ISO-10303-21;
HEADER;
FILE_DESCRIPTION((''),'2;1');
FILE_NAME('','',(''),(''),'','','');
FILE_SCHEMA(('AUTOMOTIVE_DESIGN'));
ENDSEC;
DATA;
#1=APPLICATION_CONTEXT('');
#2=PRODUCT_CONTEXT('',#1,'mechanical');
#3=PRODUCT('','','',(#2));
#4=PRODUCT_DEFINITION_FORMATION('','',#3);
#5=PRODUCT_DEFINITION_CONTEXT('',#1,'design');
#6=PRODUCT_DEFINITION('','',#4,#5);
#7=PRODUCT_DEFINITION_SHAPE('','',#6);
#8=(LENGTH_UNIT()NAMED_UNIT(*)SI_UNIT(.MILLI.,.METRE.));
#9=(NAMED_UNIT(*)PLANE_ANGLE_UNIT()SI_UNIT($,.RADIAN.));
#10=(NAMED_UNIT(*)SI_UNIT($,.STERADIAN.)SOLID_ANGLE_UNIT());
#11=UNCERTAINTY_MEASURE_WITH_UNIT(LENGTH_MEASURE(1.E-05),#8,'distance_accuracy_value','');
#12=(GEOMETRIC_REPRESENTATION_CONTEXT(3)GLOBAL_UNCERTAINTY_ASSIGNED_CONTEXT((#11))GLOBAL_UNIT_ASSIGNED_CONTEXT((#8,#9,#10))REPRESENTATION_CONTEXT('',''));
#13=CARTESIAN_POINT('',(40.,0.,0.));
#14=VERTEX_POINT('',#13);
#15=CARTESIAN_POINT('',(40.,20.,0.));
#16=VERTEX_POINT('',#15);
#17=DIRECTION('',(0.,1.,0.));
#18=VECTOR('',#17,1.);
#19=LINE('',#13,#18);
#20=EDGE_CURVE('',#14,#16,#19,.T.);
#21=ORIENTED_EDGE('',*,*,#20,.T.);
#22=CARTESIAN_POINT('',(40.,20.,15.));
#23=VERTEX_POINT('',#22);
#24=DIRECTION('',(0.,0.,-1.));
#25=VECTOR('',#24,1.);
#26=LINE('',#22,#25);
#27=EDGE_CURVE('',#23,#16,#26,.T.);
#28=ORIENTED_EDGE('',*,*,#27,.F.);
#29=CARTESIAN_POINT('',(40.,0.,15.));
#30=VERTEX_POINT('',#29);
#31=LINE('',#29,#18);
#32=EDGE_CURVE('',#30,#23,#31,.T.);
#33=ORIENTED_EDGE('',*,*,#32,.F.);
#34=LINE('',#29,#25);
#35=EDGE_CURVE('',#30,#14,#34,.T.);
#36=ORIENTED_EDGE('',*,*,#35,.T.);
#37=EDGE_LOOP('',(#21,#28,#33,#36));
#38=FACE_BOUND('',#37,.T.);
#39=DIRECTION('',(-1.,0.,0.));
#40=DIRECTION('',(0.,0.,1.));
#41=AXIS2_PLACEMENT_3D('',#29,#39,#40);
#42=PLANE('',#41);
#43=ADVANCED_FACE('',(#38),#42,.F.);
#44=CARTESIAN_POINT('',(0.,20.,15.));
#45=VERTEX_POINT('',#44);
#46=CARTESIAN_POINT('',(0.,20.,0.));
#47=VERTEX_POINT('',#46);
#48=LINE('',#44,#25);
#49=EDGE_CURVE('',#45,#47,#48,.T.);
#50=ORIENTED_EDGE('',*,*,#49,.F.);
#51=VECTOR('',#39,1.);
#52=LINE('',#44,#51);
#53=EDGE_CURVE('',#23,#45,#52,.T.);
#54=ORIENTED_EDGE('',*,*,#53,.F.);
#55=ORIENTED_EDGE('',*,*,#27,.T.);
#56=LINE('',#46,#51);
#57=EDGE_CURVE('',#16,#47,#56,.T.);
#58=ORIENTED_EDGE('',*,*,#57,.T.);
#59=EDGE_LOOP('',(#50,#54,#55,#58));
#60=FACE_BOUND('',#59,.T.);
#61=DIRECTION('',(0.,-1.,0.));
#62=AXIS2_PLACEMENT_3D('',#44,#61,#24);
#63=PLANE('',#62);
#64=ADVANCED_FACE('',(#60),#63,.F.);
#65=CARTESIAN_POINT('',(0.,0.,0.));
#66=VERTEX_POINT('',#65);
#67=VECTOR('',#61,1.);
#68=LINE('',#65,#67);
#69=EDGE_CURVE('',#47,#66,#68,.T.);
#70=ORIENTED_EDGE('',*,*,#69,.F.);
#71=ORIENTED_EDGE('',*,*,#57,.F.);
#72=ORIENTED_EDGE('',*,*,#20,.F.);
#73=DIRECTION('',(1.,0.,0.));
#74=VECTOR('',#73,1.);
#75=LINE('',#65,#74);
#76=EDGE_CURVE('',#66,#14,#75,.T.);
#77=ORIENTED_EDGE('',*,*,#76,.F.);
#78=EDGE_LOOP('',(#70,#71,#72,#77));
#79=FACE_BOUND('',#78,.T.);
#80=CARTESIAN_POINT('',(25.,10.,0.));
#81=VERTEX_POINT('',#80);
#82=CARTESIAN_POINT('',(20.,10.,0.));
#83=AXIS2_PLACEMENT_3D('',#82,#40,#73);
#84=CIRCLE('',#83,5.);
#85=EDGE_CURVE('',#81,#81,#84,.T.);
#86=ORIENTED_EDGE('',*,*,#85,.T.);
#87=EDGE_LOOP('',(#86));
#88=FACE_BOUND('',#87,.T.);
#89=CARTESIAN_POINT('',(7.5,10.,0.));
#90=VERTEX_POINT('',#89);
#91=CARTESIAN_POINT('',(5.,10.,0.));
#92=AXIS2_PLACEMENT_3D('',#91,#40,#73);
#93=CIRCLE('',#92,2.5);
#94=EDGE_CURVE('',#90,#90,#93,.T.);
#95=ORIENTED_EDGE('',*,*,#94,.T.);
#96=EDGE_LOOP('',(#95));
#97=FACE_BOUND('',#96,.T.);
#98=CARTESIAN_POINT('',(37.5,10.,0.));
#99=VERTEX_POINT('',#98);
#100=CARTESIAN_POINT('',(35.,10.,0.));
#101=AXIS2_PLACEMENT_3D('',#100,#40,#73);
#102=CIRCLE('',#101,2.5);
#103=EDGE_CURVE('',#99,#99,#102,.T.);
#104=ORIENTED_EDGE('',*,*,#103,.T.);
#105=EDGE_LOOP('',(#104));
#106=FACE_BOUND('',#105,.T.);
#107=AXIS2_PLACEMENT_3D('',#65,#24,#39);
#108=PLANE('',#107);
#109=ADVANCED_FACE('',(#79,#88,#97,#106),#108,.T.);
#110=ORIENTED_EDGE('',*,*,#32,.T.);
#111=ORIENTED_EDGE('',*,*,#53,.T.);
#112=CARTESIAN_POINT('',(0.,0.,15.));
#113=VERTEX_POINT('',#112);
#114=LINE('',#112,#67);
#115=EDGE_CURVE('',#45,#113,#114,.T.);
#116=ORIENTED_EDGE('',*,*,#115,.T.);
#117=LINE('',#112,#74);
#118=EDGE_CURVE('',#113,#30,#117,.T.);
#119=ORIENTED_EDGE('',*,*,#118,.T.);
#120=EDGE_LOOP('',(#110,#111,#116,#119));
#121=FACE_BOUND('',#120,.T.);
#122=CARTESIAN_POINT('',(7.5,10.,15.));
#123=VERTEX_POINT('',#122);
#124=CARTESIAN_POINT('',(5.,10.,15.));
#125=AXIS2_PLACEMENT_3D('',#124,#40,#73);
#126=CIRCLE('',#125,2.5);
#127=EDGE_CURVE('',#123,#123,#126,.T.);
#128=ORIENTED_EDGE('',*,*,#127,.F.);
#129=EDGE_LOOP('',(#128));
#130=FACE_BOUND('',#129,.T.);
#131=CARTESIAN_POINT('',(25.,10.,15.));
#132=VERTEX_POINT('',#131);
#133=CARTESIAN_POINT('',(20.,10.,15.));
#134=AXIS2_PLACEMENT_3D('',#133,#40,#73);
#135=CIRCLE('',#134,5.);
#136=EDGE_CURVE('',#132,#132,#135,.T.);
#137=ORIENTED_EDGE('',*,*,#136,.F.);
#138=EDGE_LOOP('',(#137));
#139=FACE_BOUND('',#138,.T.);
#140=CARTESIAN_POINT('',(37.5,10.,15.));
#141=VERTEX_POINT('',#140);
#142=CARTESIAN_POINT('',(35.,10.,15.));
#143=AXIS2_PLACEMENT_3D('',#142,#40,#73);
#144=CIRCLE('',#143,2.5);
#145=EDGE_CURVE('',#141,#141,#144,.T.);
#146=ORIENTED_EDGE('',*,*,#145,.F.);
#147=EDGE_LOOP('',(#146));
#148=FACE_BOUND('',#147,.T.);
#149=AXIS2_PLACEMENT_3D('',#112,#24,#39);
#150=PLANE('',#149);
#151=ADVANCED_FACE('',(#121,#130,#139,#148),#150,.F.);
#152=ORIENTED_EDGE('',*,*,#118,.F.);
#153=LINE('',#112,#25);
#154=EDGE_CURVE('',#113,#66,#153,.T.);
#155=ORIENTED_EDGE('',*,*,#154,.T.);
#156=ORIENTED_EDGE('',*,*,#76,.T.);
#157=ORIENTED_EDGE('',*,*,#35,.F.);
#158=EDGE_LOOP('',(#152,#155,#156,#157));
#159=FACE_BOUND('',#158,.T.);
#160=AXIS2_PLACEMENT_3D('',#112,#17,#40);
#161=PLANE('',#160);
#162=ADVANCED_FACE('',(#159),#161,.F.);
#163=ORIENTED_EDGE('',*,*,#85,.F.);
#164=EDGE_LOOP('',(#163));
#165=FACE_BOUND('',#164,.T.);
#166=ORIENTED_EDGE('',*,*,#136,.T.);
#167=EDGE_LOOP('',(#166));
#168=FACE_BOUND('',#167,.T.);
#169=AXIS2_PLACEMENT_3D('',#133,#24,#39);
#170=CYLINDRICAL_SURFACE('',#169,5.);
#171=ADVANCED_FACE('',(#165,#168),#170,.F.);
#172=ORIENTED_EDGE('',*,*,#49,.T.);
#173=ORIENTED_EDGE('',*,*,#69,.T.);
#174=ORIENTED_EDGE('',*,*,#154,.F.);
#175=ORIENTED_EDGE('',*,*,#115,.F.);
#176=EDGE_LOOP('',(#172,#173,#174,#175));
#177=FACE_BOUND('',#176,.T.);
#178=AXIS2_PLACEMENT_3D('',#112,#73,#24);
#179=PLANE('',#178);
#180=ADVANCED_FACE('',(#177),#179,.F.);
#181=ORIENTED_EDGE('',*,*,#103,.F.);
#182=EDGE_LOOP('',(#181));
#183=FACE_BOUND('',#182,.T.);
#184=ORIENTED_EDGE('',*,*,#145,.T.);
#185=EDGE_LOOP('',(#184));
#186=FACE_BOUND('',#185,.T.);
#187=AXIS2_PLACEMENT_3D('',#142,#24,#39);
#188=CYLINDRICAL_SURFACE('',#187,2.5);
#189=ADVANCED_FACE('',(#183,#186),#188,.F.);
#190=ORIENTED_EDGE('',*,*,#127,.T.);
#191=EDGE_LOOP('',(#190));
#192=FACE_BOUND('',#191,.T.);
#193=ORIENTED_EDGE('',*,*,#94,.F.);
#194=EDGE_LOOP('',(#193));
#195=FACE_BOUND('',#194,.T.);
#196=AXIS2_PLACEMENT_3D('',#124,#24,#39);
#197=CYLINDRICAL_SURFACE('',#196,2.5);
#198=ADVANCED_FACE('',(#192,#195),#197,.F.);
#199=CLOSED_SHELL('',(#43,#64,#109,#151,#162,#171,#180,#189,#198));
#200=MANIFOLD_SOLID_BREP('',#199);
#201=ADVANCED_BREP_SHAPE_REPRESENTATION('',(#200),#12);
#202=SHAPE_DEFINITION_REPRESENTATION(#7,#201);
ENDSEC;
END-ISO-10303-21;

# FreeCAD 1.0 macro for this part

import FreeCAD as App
import Part
import Sketcher
from FreeCAD import Vector
Q = App.Units.Quantity

doc = App.newDocument("Part")
body = doc.addObject("PartDesign::Body", "Body")

sketch1 = body.newObject("Sketcher::SketchObject", "Sketch")
sketch1.AttachmentSupport = (doc.getObject("XY_Plane"), [""])
sketch1.MapMode = "FlatFace"
sketch1.addGeometry(Part.LineSegment(Vector(0, 20, 0), Vector(0, 0, 0)), False)
sketch1.addGeometry(Part.LineSegment(Vector(0, 0, 0), Vector(40, 0, 0)), False)
sketch1.addGeometry(Part.LineSegment(Vector(40, 0, 0), Vector(40, 20, 0)), False)
sketch1.addGeometry(Part.LineSegment(Vector(40, 20, 0), Vector(0, 20, 0)), False)
sketch1.addGeometry(Part.Circle(Vector(5, 10, 0), Vector(0, 0, 1), 2.5), False)
sketch1.addGeometry(Part.Circle(Vector(20, 10, 0), Vector(0, 0, 1), 5), False)
sketch1.addGeometry(Part.Circle(Vector(35, 10, 0), Vector(0, 0, 1), 2.5), False)
sketch1.addConstraint(Sketcher.Constraint("Coincident", 0, 2, 1, 1))
sketch1.addConstraint(Sketcher.Constraint("Coincident", 1, 2, 2, 1))
sketch1.addConstraint(Sketcher.Constraint("Coincident", 2, 2, 3, 1))
sketch1.addConstraint(Sketcher.Constraint("Coincident", 3, 2, 0, 1))
sketch1.addConstraint(Sketcher.Constraint("Vertical", 0))
sketch1.addConstraint(Sketcher.Constraint("Horizontal", 1))
sketch1.addConstraint(Sketcher.Constraint("Vertical", 2))
sketch1.addConstraint(Sketcher.Constraint("Horizontal", 3))
sketch1.addConstraint(Sketcher.Constraint("Coincident", 0, 2, -1, 1))
sketch1.addConstraint(Sketcher.Constraint("Equal", 4, 6))
sketch1.addConstraint(Sketcher.Constraint("Horizontal", 4, 3, 5, 3))
sketch1.addConstraint(Sketcher.Constraint("Horizontal", 5, 3, 6, 3))
sketch1.addConstraint(Sketcher.Constraint("Diameter", 4, Q("5 mm")))
sketch1.addConstraint(Sketcher.Constraint("Diameter", 5, Q("10 mm")))
sketch1.addConstraint(Sketcher.Constraint("DistanceX", 1, 1, 1, 2, Q("40 mm")))
sketch1.addConstraint(Sketcher.Constraint("DistanceY", 0, 2, 0, 1, Q("20 mm")))
sketch1.addConstraint(Sketcher.Constraint("DistanceX", -1, 1, 4, 3, Q("5 mm")))
sketch1.addConstraint(Sketcher.Constraint("DistanceY", -1, 1, 4, 3, Q("10 mm")))
sketch1.addConstraint(Sketcher.Constraint("DistanceX", -1, 1, 5, 3, Q("20 mm")))
sketch1.addConstraint(Sketcher.Constraint("DistanceX", -1, 1, 6, 3, Q("35 mm")))
pad1 = body.newObject("PartDesign::Pad", "Pad")
pad1.Profile = sketch1
pad1.Length = 15

doc.recompute()
